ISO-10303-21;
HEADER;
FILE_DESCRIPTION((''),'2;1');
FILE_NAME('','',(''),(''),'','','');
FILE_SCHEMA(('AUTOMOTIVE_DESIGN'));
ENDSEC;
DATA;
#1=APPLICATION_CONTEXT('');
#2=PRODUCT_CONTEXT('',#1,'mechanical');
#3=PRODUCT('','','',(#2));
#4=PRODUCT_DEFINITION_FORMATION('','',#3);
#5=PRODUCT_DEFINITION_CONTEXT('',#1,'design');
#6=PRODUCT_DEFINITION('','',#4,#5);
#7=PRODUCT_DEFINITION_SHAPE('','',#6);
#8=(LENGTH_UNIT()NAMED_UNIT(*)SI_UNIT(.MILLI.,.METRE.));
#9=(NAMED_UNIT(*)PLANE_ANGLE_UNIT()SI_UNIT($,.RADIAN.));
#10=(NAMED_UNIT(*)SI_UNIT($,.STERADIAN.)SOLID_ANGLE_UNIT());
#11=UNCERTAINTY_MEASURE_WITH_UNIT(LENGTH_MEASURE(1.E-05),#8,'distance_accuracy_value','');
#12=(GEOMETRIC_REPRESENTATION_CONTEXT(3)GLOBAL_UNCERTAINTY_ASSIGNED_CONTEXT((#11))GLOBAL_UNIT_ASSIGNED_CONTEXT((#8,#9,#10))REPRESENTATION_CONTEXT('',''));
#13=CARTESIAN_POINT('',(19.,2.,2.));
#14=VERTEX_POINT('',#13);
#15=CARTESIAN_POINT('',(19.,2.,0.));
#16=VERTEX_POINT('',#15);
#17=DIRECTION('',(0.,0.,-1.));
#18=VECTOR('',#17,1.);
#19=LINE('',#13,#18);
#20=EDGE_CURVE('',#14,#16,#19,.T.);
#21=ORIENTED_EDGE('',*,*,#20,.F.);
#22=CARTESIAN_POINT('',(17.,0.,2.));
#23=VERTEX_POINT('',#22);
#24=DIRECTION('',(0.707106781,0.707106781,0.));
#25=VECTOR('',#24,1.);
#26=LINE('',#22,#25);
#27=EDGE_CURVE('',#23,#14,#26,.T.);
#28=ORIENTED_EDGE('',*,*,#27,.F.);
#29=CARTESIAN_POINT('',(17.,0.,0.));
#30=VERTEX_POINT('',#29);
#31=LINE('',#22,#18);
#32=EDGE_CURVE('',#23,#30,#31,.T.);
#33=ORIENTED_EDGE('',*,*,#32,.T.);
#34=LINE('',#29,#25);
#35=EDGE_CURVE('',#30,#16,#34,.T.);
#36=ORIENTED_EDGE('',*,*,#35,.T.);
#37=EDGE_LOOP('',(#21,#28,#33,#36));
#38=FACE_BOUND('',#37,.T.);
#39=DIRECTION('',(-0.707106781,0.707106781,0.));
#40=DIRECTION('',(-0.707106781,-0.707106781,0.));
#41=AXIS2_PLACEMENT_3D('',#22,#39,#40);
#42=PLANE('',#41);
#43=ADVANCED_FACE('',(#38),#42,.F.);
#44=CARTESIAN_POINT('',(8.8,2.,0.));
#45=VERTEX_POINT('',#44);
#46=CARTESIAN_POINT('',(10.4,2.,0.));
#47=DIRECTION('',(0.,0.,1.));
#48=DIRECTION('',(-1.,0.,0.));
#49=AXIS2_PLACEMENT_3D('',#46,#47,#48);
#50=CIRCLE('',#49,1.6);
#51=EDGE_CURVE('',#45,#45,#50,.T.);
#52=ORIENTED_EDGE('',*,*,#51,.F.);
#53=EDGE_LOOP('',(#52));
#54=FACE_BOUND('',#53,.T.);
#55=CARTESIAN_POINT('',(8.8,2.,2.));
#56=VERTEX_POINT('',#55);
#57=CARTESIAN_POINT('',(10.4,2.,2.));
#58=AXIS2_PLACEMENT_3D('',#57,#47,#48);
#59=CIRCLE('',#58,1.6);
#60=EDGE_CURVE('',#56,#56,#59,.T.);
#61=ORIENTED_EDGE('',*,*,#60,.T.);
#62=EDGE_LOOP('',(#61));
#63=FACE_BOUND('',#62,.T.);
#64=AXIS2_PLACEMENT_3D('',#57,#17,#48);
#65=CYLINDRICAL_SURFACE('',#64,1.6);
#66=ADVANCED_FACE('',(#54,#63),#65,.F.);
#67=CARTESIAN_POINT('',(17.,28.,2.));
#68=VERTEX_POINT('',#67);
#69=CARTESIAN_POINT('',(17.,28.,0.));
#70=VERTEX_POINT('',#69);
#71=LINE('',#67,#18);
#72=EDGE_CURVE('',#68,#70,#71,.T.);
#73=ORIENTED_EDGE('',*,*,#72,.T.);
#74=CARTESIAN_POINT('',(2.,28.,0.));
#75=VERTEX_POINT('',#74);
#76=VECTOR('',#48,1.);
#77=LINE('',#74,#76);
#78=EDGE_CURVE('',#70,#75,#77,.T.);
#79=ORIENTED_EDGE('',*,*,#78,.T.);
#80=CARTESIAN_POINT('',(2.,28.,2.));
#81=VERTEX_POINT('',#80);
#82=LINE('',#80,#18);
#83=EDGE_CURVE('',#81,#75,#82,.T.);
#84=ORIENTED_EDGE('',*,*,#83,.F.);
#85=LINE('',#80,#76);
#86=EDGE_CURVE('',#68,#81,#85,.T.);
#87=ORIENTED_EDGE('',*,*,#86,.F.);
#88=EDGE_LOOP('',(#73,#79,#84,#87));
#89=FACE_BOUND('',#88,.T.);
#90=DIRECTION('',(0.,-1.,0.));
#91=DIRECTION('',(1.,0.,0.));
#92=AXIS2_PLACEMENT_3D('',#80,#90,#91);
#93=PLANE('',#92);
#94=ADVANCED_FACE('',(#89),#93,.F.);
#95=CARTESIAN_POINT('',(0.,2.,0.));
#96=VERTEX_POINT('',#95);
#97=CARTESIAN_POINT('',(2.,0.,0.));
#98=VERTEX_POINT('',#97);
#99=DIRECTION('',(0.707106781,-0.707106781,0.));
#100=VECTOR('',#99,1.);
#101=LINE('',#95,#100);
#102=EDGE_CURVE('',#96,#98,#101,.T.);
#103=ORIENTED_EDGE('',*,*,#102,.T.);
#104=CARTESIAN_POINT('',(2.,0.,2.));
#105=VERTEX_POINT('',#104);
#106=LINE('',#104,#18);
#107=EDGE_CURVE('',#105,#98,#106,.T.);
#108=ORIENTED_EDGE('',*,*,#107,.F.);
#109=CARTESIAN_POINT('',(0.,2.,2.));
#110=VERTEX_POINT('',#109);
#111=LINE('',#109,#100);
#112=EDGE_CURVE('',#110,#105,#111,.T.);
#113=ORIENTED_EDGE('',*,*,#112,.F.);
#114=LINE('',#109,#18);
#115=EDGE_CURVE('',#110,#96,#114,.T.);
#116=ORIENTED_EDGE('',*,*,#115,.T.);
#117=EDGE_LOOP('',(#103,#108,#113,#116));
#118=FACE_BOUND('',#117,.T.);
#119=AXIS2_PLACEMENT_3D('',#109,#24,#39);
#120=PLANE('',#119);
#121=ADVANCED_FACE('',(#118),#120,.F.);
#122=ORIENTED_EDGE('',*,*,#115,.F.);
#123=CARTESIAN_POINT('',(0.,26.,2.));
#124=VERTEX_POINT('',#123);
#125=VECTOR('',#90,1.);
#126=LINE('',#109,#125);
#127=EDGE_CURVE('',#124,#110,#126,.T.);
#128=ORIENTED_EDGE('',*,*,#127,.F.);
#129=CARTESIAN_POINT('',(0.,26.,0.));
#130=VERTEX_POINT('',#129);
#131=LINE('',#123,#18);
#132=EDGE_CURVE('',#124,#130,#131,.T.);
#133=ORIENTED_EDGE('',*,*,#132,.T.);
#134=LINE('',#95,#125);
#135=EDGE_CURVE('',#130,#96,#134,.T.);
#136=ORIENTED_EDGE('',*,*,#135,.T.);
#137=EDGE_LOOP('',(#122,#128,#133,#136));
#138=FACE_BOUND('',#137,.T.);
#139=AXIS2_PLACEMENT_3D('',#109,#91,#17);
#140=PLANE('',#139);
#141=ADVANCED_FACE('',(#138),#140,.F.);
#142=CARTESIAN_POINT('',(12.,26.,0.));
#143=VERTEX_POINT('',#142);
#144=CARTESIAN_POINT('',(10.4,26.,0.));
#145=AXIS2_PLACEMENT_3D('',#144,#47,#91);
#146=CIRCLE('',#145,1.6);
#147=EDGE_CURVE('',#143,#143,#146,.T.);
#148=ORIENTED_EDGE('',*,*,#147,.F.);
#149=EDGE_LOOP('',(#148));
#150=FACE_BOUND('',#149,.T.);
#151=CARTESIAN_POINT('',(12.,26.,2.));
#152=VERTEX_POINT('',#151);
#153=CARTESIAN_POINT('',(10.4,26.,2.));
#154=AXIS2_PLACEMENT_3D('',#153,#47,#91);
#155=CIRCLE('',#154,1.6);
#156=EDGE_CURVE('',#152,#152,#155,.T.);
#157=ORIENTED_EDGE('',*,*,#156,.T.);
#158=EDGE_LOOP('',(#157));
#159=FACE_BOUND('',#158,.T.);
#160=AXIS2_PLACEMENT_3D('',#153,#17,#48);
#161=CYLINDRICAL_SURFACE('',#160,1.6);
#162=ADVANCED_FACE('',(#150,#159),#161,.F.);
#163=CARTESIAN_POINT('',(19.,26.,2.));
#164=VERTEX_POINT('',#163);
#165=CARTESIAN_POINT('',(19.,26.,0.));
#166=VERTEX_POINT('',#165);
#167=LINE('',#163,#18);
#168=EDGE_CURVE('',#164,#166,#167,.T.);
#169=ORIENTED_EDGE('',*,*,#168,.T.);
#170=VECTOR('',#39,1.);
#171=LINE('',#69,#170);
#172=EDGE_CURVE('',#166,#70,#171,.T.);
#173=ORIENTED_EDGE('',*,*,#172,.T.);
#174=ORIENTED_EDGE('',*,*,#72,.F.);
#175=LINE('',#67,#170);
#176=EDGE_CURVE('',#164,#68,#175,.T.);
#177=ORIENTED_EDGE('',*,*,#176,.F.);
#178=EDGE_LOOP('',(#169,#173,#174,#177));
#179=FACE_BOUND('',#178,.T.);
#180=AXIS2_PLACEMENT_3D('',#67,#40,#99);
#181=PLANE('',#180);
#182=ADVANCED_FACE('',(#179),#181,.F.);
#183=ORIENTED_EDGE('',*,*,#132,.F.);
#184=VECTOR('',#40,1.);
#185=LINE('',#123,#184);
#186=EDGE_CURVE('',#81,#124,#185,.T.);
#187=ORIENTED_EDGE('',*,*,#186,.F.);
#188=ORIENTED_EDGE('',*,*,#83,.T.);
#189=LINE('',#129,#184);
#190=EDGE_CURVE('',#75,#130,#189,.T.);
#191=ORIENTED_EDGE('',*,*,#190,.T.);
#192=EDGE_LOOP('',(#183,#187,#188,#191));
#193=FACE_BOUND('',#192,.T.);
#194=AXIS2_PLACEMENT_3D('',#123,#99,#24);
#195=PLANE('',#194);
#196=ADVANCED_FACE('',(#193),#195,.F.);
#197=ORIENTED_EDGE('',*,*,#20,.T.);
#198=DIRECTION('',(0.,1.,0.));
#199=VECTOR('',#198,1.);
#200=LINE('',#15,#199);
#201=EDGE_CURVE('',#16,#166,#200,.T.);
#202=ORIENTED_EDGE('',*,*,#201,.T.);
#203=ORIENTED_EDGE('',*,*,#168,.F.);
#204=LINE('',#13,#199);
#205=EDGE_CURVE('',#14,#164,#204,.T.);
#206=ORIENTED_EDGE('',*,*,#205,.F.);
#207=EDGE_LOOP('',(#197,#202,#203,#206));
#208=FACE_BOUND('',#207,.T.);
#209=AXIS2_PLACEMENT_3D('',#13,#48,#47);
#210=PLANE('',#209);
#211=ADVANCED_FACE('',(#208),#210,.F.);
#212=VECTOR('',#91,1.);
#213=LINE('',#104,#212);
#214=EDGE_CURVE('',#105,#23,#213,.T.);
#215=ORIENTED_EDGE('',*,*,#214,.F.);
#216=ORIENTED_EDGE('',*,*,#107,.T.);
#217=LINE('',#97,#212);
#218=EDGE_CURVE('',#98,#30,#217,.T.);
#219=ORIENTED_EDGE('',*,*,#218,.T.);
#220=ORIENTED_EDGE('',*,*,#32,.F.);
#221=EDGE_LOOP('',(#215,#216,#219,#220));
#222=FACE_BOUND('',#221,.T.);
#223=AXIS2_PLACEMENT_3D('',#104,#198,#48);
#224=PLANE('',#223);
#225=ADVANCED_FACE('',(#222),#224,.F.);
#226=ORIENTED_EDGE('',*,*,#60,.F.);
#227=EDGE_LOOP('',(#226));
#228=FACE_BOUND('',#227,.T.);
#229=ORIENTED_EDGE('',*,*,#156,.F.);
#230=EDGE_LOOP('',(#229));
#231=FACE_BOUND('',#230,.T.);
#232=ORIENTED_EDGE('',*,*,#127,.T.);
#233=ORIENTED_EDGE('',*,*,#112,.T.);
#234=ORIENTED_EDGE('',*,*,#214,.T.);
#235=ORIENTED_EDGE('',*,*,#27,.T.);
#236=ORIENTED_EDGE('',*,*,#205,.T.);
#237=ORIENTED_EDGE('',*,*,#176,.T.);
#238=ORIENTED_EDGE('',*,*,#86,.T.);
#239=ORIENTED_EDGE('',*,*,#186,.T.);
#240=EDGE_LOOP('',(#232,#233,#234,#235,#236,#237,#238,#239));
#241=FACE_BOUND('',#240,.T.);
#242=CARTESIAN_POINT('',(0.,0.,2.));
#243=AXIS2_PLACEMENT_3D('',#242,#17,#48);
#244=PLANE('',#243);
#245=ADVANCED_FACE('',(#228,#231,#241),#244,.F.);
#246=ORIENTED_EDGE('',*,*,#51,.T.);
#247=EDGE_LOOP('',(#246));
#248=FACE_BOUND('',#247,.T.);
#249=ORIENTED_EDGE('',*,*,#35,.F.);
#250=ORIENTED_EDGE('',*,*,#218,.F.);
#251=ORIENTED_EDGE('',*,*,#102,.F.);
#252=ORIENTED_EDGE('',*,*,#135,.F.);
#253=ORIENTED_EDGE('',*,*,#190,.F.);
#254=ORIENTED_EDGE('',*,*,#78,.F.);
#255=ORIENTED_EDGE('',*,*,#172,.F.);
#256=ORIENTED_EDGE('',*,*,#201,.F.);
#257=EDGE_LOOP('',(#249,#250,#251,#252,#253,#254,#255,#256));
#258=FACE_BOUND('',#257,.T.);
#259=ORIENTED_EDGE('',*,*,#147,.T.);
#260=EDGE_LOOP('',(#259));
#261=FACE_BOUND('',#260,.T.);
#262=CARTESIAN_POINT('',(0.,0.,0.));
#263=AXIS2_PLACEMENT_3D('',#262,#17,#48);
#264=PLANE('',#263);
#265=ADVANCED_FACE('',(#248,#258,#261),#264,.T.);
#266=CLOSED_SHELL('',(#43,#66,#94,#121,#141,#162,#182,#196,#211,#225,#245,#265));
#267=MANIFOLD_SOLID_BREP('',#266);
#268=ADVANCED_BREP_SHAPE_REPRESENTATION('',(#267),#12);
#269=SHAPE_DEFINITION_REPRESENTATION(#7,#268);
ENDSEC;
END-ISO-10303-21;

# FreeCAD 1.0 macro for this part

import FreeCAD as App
import Part
import Sketcher

V = App.Vector

doc = App.newDocument("Part")
body = doc.addObject("PartDesign::Body", "Body")

# Sketch on XY plane
sketch1 = body.newObject("Sketcher::SketchObject", "Sketch")
sketch1.AttachmentSupport = (doc.getObject("XY_Plane"), [""])
sketch1.MapMode = "FlatFace"
sketch1.addGeometry([
    Part.LineSegment(V(2, 0, 0), V(17, 0, 0)),  # 0
    Part.LineSegment(V(17, 0, 0), V(19, 2, 0)),  # 1
    Part.LineSegment(V(19, 2, 0), V(19, 26, 0)),  # 2
    Part.LineSegment(V(19, 26, 0), V(17, 28, 0)),  # 3
    Part.LineSegment(V(17, 28, 0), V(2, 28, 0)),  # 4
    Part.LineSegment(V(2, 28, 0), V(0, 26, 0)),  # 5
    Part.LineSegment(V(0, 26, 0), V(0, 2, 0)),  # 6
    Part.LineSegment(V(0, 2, 0), V(2, 0, 0)),  # 7
    Part.Circle(V(10.4, 2, 0), V(0, 0, 1), 1.6),  # 8
    Part.Circle(V(10.4, 26, 0), V(0, 0, 1), 1.6),  # 9
], False)
sketch1.addConstraint([
    Sketcher.Constraint("Coincident", 0, 2, 1, 1),
    Sketcher.Constraint("Coincident", 1, 2, 2, 1),
    Sketcher.Constraint("Coincident", 2, 2, 3, 1),
    Sketcher.Constraint("Coincident", 3, 2, 4, 1),
    Sketcher.Constraint("Coincident", 4, 2, 5, 1),
    Sketcher.Constraint("Coincident", 5, 2, 6, 1),
    Sketcher.Constraint("Coincident", 6, 2, 7, 1),
    Sketcher.Constraint("Coincident", 7, 2, 0, 1),
    Sketcher.Constraint("Horizontal", 0),
    Sketcher.Constraint("Vertical", 2),
    Sketcher.Constraint("Horizontal", 4),
    Sketcher.Constraint("Vertical", 6),
    Sketcher.Constraint("Equal", 8, 9),
    Sketcher.Constraint("PointOnObject", 0, 2, -1),
    Sketcher.Constraint("PointOnObject", 5, 2, -2),
    Sketcher.Constraint("Perpendicular", 1, 3),
    Sketcher.Constraint("Perpendicular", 3, 5),
    Sketcher.Constraint("Perpendicular", 5, 7),
    Sketcher.Constraint("Horizontal", 8, 3, 1, 2),
    Sketcher.Constraint("Horizontal", 9, 3, 2, 2),
    Sketcher.Constraint("Horizontal", 2, 2, 5, 2),
    Sketcher.Constraint("Horizontal", 1, 2, 6, 2),
    Sketcher.Constraint("Vertical", 8, 3, 9, 3),
    Sketcher.Constraint("Vertical", 0, 2, 3, 2),
    Sketcher.Constraint("Vertical", 4, 2, 7, 2),
    Sketcher.Constraint("Diameter", 8, 3.2),
    Sketcher.Constraint("DistanceX", 0, 1, 0, 2, 15.0),
    Sketcher.Constraint("DistanceY", 2, 1, 2, 2, 24.0),
    Sketcher.Constraint("DistanceY", -1, 1, 8, 3, 2.0),
    Sketcher.Constraint("DistanceX", -1, 1, 8, 3, 10.4),
])
pad1 = body.newObject("PartDesign::Pad", "Pad")
pad1.Profile = sketch1
pad1.Length = 2

doc.recompute()
